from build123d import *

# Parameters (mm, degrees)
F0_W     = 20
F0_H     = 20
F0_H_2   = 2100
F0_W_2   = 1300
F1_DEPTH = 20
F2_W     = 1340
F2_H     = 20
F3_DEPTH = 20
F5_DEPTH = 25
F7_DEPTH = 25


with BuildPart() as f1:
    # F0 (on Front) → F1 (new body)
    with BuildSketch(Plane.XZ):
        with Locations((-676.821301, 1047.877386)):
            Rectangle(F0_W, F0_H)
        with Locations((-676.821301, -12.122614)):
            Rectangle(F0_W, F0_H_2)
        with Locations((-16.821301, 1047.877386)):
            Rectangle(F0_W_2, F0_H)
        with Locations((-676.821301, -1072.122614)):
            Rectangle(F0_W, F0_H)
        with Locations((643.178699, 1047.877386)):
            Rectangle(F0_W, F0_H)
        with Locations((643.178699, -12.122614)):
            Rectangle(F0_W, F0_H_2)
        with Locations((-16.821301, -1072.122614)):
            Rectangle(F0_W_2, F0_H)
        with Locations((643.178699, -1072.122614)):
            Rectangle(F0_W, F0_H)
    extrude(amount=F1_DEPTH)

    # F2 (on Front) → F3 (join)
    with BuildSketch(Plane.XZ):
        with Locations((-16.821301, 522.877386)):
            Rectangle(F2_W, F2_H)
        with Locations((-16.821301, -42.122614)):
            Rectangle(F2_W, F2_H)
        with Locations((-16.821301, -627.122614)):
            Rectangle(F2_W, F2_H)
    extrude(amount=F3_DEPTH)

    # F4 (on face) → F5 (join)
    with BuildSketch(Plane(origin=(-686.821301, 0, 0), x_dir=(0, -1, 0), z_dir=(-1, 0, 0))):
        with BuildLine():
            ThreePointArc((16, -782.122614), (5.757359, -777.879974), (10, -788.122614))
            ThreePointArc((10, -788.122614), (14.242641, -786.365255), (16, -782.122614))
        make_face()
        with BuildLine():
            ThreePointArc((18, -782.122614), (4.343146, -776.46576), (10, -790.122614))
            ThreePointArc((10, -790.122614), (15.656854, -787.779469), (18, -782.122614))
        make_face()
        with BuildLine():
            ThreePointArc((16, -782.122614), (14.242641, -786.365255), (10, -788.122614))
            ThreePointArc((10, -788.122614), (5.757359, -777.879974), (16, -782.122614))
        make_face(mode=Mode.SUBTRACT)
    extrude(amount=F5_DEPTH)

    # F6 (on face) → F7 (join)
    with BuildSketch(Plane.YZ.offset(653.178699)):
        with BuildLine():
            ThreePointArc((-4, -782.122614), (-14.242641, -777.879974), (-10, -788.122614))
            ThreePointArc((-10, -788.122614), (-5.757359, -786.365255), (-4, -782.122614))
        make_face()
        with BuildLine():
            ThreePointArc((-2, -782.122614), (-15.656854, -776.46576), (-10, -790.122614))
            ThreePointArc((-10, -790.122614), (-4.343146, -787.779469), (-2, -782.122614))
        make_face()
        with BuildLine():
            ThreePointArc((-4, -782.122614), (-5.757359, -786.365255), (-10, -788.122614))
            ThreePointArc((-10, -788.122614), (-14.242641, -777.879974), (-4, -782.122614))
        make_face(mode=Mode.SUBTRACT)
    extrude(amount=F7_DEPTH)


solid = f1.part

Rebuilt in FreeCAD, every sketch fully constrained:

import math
import FreeCAD as App
import Part
import Sketcher

doc = App.newDocument("Part")
body = doc.addObject("PartDesign::Body", "Body")

# Sketch on XZ plane
sketch1 = body.newObject("Sketcher::SketchObject", "Sketch")
sketch1.AttachmentSupport = (doc.getObject("XZ_Plane"), [""])
sketch1.MapMode = "FlatFace"
sketch1.addGeometry([
    Part.LineSegment(App.Vector(-687, -1082, 0), App.Vector(653, -1082, 0)),  # 0
    Part.LineSegment(App.Vector(653, -1082, 0), App.Vector(653, 1058, 0)),  # 1
    Part.LineSegment(App.Vector(653, 1058, 0), App.Vector(-687, 1058, 0)),  # 2
    Part.LineSegment(App.Vector(-687, 1058, 0), App.Vector(-687, -1082, 0)),  # 3
    Part.LineSegment(App.Vector(633, -1062, 0), App.Vector(-667, -1062, 0)),  # 4
    Part.LineSegment(App.Vector(-667, -1062, 0), App.Vector(-667, 1038, 0)),  # 5
    Part.LineSegment(App.Vector(-667, 1038, 0), App.Vector(633, 1038, 0)),  # 6
    Part.LineSegment(App.Vector(633, 1038, 0), App.Vector(633, -1062, 0)),  # 7
], False)
sketch1.addConstraint([
    Sketcher.Constraint("Coincident", 0, 2, 1, 1),
    Sketcher.Constraint("Coincident", 1, 2, 2, 1),
    Sketcher.Constraint("Coincident", 2, 2, 3, 1),
    Sketcher.Constraint("Coincident", 3, 2, 0, 1),
    Sketcher.Constraint("Coincident", 4, 2, 5, 1),
    Sketcher.Constraint("Coincident", 5, 2, 6, 1),
    Sketcher.Constraint("Coincident", 6, 2, 7, 1),
    Sketcher.Constraint("Coincident", 7, 2, 4, 1),
    Sketcher.Constraint("Horizontal", 0),
    Sketcher.Constraint("Vertical", 1),
    Sketcher.Constraint("Horizontal", 2),
    Sketcher.Constraint("Vertical", 3),
    Sketcher.Constraint("Horizontal", 4),
    Sketcher.Constraint("Vertical", 5),
    Sketcher.Constraint("Horizontal", 6),
    Sketcher.Constraint("Vertical", 7),
    Sketcher.Constraint("DistanceX", 0, 1, 0, 2, 1340.0),
    Sketcher.Constraint("DistanceX", 4, 2, 4, 1, 1300.0),
    Sketcher.Constraint("DistanceY", 1, 1, 1, 2, 2140.0),
    Sketcher.Constraint("DistanceY", 5, 1, 5, 2, 2100.0),
    Sketcher.Constraint("DistanceX", 3, 2, 4, 2, 20.0),
    Sketcher.Constraint("DistanceY", 3, 2, 4, 2, 20.0),
    Sketcher.Constraint("DistanceX", -1, 1, 0, 2, 653.178699),
    Sketcher.Constraint("DistanceY", 0, 2, -1, 1, 1082.122614),
])
pad1 = body.newObject("PartDesign::Pad", "Pad")
pad1.Profile = sketch1
pad1.Length = 20

# Sketch on XZ plane
sketch2 = body.newObject("Sketcher::SketchObject", "Sketch001")
sketch2.AttachmentSupport = (doc.getObject("XZ_Plane"), [""])
sketch2.MapMode = "FlatFace"
sketch2.addGeometry([
    Part.LineSegment(App.Vector(-687, 533, 0), App.Vector(-687, 513, 0)),  # 0
    Part.LineSegment(App.Vector(-687, 513, 0), App.Vector(653, 513, 0)),  # 1
    Part.LineSegment(App.Vector(653, 513, 0), App.Vector(653, 533, 0)),  # 2
    Part.LineSegment(App.Vector(653, 533, 0), App.Vector(-687, 533, 0)),  # 3
    Part.LineSegment(App.Vector(-687, -32, 0), App.Vector(-687, -52, 0)),  # 4
    Part.LineSegment(App.Vector(-687, -52, 0), App.Vector(653, -52, 0)),  # 5
    Part.LineSegment(App.Vector(653, -52, 0), App.Vector(653, -32, 0)),  # 6
    Part.LineSegment(App.Vector(653, -32, 0), App.Vector(-687, -32, 0)),  # 7
    Part.LineSegment(App.Vector(-687, -617, 0), App.Vector(-687, -637, 0)),  # 8
    Part.LineSegment(App.Vector(-687, -637, 0), App.Vector(653, -637, 0)),  # 9
    Part.LineSegment(App.Vector(653, -637, 0), App.Vector(653, -617, 0)),  # 10
    Part.LineSegment(App.Vector(653, -617, 0), App.Vector(-687, -617, 0)),  # 11
], False)
sketch2.addConstraint([
    Sketcher.Constraint("Coincident", 0, 2, 1, 1),
    Sketcher.Constraint("Coincident", 1, 2, 2, 1),
    Sketcher.Constraint("Coincident", 2, 2, 3, 1),
    Sketcher.Constraint("Coincident", 3, 2, 0, 1),
    Sketcher.Constraint("Coincident", 4, 2, 5, 1),
    Sketcher.Constraint("Coincident", 5, 2, 6, 1),
    Sketcher.Constraint("Coincident", 6, 2, 7, 1),
    Sketcher.Constraint("Coincident", 7, 2, 4, 1),
    Sketcher.Constraint("Coincident", 8, 2, 9, 1),
    Sketcher.Constraint("Coincident", 9, 2, 10, 1),
    Sketcher.Constraint("Coincident", 10, 2, 11, 1),
    Sketcher.Constraint("Coincident", 11, 2, 8, 1),
    Sketcher.Constraint("Vertical", 0),
    Sketcher.Constraint("Horizontal", 1),
    Sketcher.Constraint("Vertical", 2),
    Sketcher.Constraint("Horizontal", 3),
    Sketcher.Constraint("Vertical", 4),
    Sketcher.Constraint("Horizontal", 5),
    Sketcher.Constraint("Vertical", 6),
    Sketcher.Constraint("Horizontal", 7),
    Sketcher.Constraint("Vertical", 8),
    Sketcher.Constraint("Horizontal", 9),
    Sketcher.Constraint("Vertical", 10),
    Sketcher.Constraint("Horizontal", 11),
    Sketcher.Constraint("Vertical", 3, 2, 4, 2),
    Sketcher.Constraint("Vertical", 2, 2, 5, 2),
    Sketcher.Constraint("Vertical", 7, 2, 8, 2),
    Sketcher.Constraint("Vertical", 6, 2, 9, 2),
    Sketcher.Constraint("Equal", 2, 4),
    Sketcher.Constraint("Equal", 6, 8),
    Sketcher.Constraint("DistanceX", 1, 1, 1, 2, 1340.0),
    Sketcher.Constraint("DistanceY", 0, 2, 0, 1, 20.0),
    Sketcher.Constraint("DistanceY", 4, 2, 0, 2, 565.0),
    Sketcher.Constraint("DistanceY", 8, 2, 4, 2, 585.0),
    Sketcher.Constraint("DistanceX", 0, 2, -1, 1, 686.821301),
    Sketcher.Constraint("DistanceY", -1, 1, 0, 2, 512.877386),
])
pad2 = body.newObject("PartDesign::Pad", "Pad001")
pad2.Profile = sketch2
pad2.Length = 20

# Sketch on YZ plane
sketch3 = body.newObject("Sketcher::SketchObject", "Sketch002")
sketch3.AttachmentSupport = (doc.getObject("YZ_Plane"), [""])
sketch3.MapMode = "FlatFace"
sketch3.AttachmentOffset = App.Placement(App.Vector(0, 0, -686.821301), App.Rotation())
sketch3.addGeometry([
    Part.ArcOfCircle(Part.Circle(App.Vector(-10, -782, 0), App.Vector(0, 0, 1), 8), math.radians(-90), math.radians(180)),
    Part.ArcOfCircle(Part.Circle(App.Vector(-10, -782, 0), App.Vector(0, 0, 1), 8), math.radians(180), math.radians(270)),
    Part.ArcOfCircle(Part.Circle(App.Vector(-10, -782, 0), App.Vector(0, 0, 1), 6), math.radians(-90), math.radians(180)),
    Part.ArcOfCircle(Part.Circle(App.Vector(-10, -782, 0), App.Vector(0, 0, 1), 6), math.radians(180), math.radians(270)),
], False)
sketch3.addConstraint([
    Sketcher.Constraint("Tangent", 0, 1, 1, 2),
    Sketcher.Constraint("Coincident", 1, 1, 0, 2),
    Sketcher.Constraint("Tangent", 2, 1, 3, 2),
    Sketcher.Constraint("Coincident", 3, 1, 2, 2),
    Sketcher.Constraint("Coincident", 2, 3, 0, 3),
    Sketcher.Constraint("Horizontal", 3, 3, 1, 1),
    Sketcher.Constraint("Horizontal", 1, 1, 3, 1),
    Sketcher.Constraint("Vertical", 3, 3, 0, 1),
    Sketcher.Constraint("Vertical", 0, 1, 2, 1),
    Sketcher.Constraint("Radius", 0, 8.0),
    Sketcher.Constraint("Radius", 2, 6.0),
    Sketcher.Constraint("DistanceX", 0, 3, -1, 1, 10.0),
    Sketcher.Constraint("DistanceY", 0, 3, -1, 1, 782.122614),
])
pad3 = body.newObject("PartDesign::Pad", "Pad002")
pad3.Profile = sketch3
pad3.Length = 25
pad3.Reversed = True

# Sketch on YZ plane
sketch4 = body.newObject("Sketcher::SketchObject", "Sketch003")
sketch4.AttachmentSupport = (doc.getObject("YZ_Plane"), [""])
sketch4.MapMode = "FlatFace"
sketch4.AttachmentOffset = App.Placement(App.Vector(0, 0, 653.178699), App.Rotation())
sketch4.addGeometry([
    Part.ArcOfCircle(Part.Circle(App.Vector(-10, -782, 0), App.Vector(0, 0, 1), 8), math.radians(0), math.radians(270)),
    Part.ArcOfCircle(Part.Circle(App.Vector(-10, -782, 0), App.Vector(0, 0, 1), 8), math.radians(-90), math.radians(0)),
    Part.ArcOfCircle(Part.Circle(App.Vector(-10, -782, 0), App.Vector(0, 0, 1), 6), math.radians(0), math.radians(270)),
    Part.ArcOfCircle(Part.Circle(App.Vector(-10, -782, 0), App.Vector(0, 0, 1), 6), math.radians(-90), math.radians(0)),
], False)
sketch4.addConstraint([
    Sketcher.Constraint("Tangent", 0, 1, 1, 2),
    Sketcher.Constraint("Coincident", 1, 1, 0, 2),
    Sketcher.Constraint("Tangent", 2, 1, 3, 2),
    Sketcher.Constraint("Coincident", 3, 1, 2, 2),
    Sketcher.Constraint("Coincident", 2, 3, 0, 3),
    Sketcher.Constraint("Horizontal", 3, 3, 0, 1),
    Sketcher.Constraint("Horizontal", 0, 1, 2, 1),
    Sketcher.Constraint("Vertical", 3, 3, 1, 1),
    Sketcher.Constraint("Vertical", 1, 1, 3, 1),
    Sketcher.Constraint("Radius", 0, 8.0),
    Sketcher.Constraint("Radius", 2, 6.0),
    Sketcher.Constraint("DistanceX", 0, 3, -1, 1, 10.0),
    Sketcher.Constraint("DistanceY", 0, 3, -1, 1, 782.122614),
])
pad4 = body.newObject("PartDesign::Pad", "Pad003")
pad4.Profile = sketch4
pad4.Length = 25

doc.recompute()
